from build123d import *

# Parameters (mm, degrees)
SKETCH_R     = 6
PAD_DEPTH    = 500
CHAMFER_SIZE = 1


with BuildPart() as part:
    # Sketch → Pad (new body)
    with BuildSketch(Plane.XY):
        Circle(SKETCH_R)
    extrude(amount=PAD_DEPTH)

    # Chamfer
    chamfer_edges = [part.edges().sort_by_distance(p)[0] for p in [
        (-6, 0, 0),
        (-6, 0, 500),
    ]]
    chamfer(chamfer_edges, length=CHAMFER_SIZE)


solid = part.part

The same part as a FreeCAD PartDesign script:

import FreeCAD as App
import Part
import Sketcher
Q = App.Units.Quantity


def edges_at(feature, points):
    """Names of the edges that pass closest to the given points."""
    edges = feature.Shape.Edges
    near = lambda p: min(range(len(edges)), key=lambda i: edges[i].distToShape(Part.Vertex(*p))[0])
    return sorted({f"Edge{near(p) + 1}" for p in points})

doc = App.newDocument("Part")
body = doc.addObject("PartDesign::Body", "Body")

sketch1 = body.newObject("Sketcher::SketchObject", "Sketch")
sketch1.AttachmentSupport = (doc.getObject("XY_Plane"), [""])
sketch1.MapMode = "FlatFace"
sketch1.addGeometry(Part.Circle(App.Vector(0, 0, 0), App.Vector(0, 0, 1), 6), False)
sketch1.addConstraint(Sketcher.Constraint("Coincident", 0, 3, -1, 1))
sketch1.addConstraint(Sketcher.Constraint("Diameter", 0, Q("12 mm")))
pad1 = body.newObject("PartDesign::Pad", "Pad")
pad1.Profile = sketch1
pad1.Length = 500
doc.recompute()

chamfer = body.newObject("PartDesign::Chamfer", "Chamfer")
chamfer.Base = (pad1, edges_at(pad1, [(-6, 0, 0), (-6, 0, 500)]))
chamfer.Size = 1

doc.recompute()
